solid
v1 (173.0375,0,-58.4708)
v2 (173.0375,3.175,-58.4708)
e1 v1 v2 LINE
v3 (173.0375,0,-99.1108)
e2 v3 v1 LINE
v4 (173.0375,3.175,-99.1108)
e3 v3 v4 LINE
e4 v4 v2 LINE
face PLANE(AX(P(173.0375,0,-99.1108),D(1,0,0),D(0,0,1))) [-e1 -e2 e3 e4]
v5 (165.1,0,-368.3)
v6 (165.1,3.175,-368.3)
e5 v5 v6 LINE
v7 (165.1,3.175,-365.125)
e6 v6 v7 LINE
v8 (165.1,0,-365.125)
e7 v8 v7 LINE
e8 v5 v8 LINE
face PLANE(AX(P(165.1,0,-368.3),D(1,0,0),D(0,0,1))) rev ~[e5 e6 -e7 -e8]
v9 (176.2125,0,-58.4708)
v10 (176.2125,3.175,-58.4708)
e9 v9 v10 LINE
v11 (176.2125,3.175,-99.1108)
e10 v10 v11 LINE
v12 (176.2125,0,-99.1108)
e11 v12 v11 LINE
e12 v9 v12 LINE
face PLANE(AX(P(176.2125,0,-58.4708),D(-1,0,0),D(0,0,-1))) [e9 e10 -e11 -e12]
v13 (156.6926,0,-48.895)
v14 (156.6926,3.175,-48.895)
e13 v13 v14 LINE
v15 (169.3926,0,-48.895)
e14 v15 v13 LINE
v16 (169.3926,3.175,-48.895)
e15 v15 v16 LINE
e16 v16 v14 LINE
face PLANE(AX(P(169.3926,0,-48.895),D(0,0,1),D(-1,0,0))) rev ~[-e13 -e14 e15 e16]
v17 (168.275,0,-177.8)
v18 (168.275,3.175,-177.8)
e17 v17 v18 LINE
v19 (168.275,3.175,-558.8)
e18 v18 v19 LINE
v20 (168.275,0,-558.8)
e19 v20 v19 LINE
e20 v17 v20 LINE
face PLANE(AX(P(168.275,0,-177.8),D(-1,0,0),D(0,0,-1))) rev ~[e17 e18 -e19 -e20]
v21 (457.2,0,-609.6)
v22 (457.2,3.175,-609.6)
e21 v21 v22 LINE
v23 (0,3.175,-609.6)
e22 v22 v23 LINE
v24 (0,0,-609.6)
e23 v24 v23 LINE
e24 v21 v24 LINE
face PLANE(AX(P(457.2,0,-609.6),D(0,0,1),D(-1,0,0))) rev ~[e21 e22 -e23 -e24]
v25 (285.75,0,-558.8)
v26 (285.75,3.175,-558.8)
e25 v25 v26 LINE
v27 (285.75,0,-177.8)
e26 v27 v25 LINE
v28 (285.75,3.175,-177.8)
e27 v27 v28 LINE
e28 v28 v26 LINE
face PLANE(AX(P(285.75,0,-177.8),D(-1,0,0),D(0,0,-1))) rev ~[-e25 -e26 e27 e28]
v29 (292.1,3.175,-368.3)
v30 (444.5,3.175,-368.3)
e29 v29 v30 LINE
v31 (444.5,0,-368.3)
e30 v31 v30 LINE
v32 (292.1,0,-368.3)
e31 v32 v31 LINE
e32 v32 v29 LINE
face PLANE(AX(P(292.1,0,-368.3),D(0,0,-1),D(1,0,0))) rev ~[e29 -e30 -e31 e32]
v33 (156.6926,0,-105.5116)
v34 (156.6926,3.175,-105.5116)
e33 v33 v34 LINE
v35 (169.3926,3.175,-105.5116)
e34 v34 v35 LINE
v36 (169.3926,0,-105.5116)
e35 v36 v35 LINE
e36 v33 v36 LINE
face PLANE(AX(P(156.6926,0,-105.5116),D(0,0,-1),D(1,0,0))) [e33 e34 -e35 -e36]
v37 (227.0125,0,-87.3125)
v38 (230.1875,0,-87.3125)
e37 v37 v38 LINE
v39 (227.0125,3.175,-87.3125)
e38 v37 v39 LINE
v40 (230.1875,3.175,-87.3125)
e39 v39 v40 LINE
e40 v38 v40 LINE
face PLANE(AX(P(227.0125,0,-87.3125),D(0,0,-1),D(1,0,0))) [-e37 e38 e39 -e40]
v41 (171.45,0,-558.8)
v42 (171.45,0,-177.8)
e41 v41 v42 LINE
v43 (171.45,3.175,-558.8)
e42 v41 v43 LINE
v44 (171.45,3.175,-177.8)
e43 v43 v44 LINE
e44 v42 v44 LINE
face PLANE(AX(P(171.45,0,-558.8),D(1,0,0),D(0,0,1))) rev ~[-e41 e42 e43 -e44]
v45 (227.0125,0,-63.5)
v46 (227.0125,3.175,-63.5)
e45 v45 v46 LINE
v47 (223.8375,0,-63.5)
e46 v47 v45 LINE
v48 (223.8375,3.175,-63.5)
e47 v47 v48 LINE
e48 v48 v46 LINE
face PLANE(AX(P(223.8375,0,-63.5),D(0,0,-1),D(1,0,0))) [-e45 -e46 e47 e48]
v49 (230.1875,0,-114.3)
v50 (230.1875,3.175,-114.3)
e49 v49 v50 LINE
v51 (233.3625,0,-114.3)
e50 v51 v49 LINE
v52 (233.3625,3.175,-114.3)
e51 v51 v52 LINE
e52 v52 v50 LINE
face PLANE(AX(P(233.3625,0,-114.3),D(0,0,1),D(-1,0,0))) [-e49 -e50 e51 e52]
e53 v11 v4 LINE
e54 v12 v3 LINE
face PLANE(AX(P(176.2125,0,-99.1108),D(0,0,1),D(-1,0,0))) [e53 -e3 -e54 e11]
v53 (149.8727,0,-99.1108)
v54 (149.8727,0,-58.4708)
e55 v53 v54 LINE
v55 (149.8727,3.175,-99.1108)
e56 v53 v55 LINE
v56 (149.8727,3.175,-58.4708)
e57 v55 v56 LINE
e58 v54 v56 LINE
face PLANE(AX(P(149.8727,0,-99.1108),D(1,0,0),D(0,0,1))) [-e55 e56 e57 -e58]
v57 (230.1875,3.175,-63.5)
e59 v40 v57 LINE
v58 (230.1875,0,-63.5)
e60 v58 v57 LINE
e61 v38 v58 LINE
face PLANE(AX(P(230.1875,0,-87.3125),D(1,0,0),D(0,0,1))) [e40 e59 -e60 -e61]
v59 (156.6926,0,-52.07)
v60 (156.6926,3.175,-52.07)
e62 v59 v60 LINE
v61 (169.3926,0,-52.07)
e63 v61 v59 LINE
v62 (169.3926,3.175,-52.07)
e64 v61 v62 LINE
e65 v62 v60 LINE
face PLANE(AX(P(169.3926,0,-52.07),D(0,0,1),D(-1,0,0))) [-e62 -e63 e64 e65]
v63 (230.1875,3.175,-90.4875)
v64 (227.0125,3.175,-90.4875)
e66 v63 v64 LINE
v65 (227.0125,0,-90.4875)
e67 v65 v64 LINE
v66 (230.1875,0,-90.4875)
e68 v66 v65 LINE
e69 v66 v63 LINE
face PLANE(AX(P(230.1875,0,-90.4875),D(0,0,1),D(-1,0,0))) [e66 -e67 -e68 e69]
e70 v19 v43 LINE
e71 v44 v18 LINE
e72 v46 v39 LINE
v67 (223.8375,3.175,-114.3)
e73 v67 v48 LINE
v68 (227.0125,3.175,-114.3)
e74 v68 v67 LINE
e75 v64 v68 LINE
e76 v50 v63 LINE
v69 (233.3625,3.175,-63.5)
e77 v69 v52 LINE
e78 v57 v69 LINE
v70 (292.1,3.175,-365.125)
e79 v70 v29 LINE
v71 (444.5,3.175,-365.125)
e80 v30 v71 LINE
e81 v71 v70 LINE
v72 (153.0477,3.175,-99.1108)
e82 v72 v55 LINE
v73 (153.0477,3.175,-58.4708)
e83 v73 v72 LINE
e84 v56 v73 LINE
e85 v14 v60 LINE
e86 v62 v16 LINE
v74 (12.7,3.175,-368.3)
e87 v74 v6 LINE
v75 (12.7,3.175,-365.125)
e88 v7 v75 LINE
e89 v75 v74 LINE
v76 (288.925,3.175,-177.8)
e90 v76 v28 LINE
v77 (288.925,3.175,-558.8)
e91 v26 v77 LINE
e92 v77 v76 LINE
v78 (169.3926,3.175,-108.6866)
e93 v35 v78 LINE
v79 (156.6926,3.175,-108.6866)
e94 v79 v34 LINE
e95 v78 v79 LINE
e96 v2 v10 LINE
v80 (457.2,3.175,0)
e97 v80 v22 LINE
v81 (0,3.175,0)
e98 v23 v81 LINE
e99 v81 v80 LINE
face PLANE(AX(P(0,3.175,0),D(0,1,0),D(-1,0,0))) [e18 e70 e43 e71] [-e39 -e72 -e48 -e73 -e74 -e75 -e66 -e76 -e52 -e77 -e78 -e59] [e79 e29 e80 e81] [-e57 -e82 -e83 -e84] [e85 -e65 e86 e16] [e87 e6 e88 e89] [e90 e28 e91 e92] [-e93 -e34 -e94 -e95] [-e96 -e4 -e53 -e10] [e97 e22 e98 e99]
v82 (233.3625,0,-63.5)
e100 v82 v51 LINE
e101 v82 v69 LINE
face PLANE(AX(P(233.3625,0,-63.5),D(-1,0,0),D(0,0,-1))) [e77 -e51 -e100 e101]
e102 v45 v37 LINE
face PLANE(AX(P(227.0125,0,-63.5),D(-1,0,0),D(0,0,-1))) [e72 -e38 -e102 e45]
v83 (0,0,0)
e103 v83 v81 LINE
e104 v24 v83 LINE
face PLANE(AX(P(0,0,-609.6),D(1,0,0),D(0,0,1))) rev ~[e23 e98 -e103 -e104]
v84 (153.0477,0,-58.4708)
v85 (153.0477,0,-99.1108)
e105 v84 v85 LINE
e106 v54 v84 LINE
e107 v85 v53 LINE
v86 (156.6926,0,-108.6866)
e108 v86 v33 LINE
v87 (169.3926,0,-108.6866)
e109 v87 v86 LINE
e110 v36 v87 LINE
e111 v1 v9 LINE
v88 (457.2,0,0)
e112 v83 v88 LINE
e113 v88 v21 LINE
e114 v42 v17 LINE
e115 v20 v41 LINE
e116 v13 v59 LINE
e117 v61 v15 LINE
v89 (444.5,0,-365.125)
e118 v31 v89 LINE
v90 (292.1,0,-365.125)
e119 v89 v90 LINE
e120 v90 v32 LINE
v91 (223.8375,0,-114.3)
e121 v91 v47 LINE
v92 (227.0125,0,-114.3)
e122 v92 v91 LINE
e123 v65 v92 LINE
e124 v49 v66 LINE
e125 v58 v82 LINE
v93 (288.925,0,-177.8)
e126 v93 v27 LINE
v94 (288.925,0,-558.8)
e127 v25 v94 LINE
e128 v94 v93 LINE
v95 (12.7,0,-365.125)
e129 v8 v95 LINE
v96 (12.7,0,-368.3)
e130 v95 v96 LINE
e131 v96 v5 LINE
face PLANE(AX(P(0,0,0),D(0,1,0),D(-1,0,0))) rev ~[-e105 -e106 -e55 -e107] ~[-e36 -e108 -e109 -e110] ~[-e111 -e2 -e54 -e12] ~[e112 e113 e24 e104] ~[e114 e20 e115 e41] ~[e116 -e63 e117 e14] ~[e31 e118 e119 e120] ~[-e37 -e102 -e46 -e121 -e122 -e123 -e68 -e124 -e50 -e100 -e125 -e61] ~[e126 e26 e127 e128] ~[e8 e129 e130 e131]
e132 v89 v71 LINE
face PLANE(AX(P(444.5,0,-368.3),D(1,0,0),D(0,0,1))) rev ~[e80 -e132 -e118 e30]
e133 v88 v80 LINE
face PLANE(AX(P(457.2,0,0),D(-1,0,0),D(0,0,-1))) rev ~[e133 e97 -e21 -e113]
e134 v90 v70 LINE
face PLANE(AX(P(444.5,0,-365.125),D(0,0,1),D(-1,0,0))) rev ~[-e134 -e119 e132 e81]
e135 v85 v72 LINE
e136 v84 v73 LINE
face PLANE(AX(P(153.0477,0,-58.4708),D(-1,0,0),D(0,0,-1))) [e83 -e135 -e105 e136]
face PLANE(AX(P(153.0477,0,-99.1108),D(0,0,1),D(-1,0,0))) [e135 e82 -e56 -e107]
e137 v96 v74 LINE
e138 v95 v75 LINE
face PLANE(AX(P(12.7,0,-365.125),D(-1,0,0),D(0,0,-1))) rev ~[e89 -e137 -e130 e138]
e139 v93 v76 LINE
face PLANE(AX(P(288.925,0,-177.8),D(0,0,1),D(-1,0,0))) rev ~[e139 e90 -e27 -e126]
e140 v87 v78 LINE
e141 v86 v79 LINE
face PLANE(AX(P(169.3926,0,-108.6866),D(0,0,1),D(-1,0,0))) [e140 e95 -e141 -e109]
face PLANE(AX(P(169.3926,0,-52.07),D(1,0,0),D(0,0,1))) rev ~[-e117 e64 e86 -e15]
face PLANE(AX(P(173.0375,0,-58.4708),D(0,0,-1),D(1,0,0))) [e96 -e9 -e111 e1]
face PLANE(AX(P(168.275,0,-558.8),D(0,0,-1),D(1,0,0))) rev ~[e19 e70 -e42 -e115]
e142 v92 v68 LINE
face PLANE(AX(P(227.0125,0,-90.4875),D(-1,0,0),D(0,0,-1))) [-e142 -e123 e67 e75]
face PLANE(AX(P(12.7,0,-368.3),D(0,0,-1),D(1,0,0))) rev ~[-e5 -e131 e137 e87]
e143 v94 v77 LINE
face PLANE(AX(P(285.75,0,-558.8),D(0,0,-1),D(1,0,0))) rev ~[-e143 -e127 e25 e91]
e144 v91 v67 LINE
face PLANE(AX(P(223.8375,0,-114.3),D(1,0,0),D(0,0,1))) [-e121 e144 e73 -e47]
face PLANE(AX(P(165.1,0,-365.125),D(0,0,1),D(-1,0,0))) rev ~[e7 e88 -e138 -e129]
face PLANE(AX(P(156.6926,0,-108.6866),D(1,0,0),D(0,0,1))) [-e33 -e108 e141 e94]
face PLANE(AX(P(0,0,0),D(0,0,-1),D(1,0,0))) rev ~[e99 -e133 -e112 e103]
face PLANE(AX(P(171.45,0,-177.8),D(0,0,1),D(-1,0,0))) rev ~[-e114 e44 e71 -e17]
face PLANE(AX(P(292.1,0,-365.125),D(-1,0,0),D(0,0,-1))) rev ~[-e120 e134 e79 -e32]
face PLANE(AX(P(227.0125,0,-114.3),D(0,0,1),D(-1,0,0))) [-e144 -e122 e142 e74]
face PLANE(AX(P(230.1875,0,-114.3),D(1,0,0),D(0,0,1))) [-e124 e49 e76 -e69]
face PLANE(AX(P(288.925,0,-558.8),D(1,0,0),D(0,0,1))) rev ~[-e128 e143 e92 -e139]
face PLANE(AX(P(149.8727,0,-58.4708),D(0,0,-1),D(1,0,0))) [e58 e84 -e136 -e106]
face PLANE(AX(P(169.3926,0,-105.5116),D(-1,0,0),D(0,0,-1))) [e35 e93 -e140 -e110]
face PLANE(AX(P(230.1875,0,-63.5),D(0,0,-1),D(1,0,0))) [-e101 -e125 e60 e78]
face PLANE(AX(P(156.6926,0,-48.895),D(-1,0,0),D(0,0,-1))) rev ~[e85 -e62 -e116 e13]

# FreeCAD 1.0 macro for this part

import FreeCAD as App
import Part
import Sketcher
from FreeCAD import Vector
Q = App.Units.Quantity

doc = App.newDocument("Part")
body = doc.addObject("PartDesign::Body", "Body")

# Sketch on XZ plane
sketch1 = doc.addObject("Sketcher::SketchObject", "Sketch")
body.addObject(sketch1)
sketch1.AttachmentSupport = (doc.XZ_Plane, [""])
sketch1.MapMode = "FlatFace"
sketch1.addGeometry([
    Part.LineSegment(Vector(0, -609.6, 0), Vector(0, 0, 0)),  # 0
    Part.LineSegment(Vector(0, 0, 0), Vector(457.2, 0, 0)),  # 1
    Part.LineSegment(Vector(457.2, 0, 0), Vector(457.2, -609.6, 0)),  # 2
    Part.LineSegment(Vector(457.2, -609.6, 0), Vector(0, -609.6, 0)),  # 3
    Part.LineSegment(Vector(292.1, -365.125, 0), Vector(292.1, -368.3, 0)),  # 4
    Part.LineSegment(Vector(292.1, -368.3, 0), Vector(444.5, -368.3, 0)),  # 5
    Part.LineSegment(Vector(444.5, -368.3, 0), Vector(444.5, -365.125, 0)),  # 6
    Part.LineSegment(Vector(444.5, -365.125, 0), Vector(292.1, -365.125, 0)),  # 7
    Part.LineSegment(Vector(285.75, -177.8, 0), Vector(285.75, -558.8, 0)),  # 8
    Part.LineSegment(Vector(285.75, -558.8, 0), Vector(288.925, -558.8, 0)),  # 9
    Part.LineSegment(Vector(288.925, -558.8, 0), Vector(288.925, -177.8, 0)),  # 10
    Part.LineSegment(Vector(288.925, -177.8, 0), Vector(285.75, -177.8, 0)),  # 11
    Part.LineSegment(Vector(168.275, -177.8, 0), Vector(168.275, -558.8, 0)),  # 12
    Part.LineSegment(Vector(168.275, -558.8, 0), Vector(171.45, -558.8, 0)),  # 13
    Part.LineSegment(Vector(171.45, -558.8, 0), Vector(171.45, -177.8, 0)),  # 14
    Part.LineSegment(Vector(171.45, -177.8, 0), Vector(168.275, -177.8, 0)),  # 15
    Part.LineSegment(Vector(12.7, -365.125, 0), Vector(12.7, -368.3, 0)),  # 16
    Part.LineSegment(Vector(12.7, -368.3, 0), Vector(165.1, -368.3, 0)),  # 17
    Part.LineSegment(Vector(165.1, -368.3, 0), Vector(165.1, -365.125, 0)),  # 18
    Part.LineSegment(Vector(165.1, -365.125, 0), Vector(12.7, -365.125, 0)),  # 19
    Part.LineSegment(Vector(227.0125, -63.5, 0), Vector(223.8375, -63.5, 0)),  # 20
    Part.LineSegment(Vector(223.8375, -63.5, 0), Vector(223.8375, -114.3, 0)),  # 21
    Part.LineSegment(Vector(223.8375, -114.3, 0), Vector(227.0125, -114.3, 0)),  # 22
    Part.LineSegment(Vector(227.0125, -114.3, 0), Vector(227.0125, -90.4875, 0)),  # 23
    Part.LineSegment(Vector(227.0125, -90.4875, 0), Vector(230.1875, -90.4875, 0)),  # 24
    Part.LineSegment(Vector(230.1875, -90.4875, 0), Vector(230.1875, -114.3, 0)),  # 25
    Part.LineSegment(Vector(230.1875, -114.3, 0), Vector(233.3625, -114.3, 0)),  # 26
    Part.LineSegment(Vector(233.3625, -114.3, 0), Vector(233.3625, -63.5, 0)),  # 27
    Part.LineSegment(Vector(233.3625, -63.5, 0), Vector(230.1875, -63.5, 0)),  # 28
    Part.LineSegment(Vector(230.1875, -63.5, 0), Vector(230.1875, -87.3125, 0)),  # 29
    Part.LineSegment(Vector(230.1875, -87.3125, 0), Vector(227.0125, -87.3125, 0)),  # 30
    Part.LineSegment(Vector(227.0125, -87.3125, 0), Vector(227.0125, -63.5, 0)),  # 31
    Part.LineSegment(Vector(149.8727, -99.1108, 0), Vector(153.0477, -99.1108, 0)),  # 32
    Part.LineSegment(Vector(153.0477, -99.1108, 0), Vector(153.0477, -58.4708, 0)),  # 33
    Part.LineSegment(Vector(153.0477, -58.4708, 0), Vector(149.8727, -58.4708, 0)),  # 34
    Part.LineSegment(Vector(149.8727, -58.4708, 0), Vector(149.8727, -99.1108, 0)),  # 35
    Part.LineSegment(Vector(156.6926, -48.895, 0), Vector(156.6926, -52.07, 0)),  # 36
    Part.LineSegment(Vector(156.6926, -52.07, 0), Vector(169.3926, -52.07, 0)),  # 37
    Part.LineSegment(Vector(169.3926, -52.07, 0), Vector(169.3926, -48.895, 0)),  # 38
    Part.LineSegment(Vector(169.3926, -48.895, 0), Vector(156.6926, -48.895, 0)),  # 39
    Part.LineSegment(Vector(176.2125, -58.4708, 0), Vector(173.0375, -58.4708, 0)),  # 40
    Part.LineSegment(Vector(173.0375, -58.4708, 0), Vector(173.0375, -99.1108, 0)),  # 41
    Part.LineSegment(Vector(173.0375, -99.1108, 0), Vector(176.2125, -99.1108, 0)),  # 42
    Part.LineSegment(Vector(176.2125, -99.1108, 0), Vector(176.2125, -58.4708, 0)),  # 43
    Part.LineSegment(Vector(169.3926, -108.6866, 0), Vector(169.3926, -105.5116, 0)),  # 44
    Part.LineSegment(Vector(169.3926, -105.5116, 0), Vector(156.6926, -105.5116, 0)),  # 45
    Part.LineSegment(Vector(156.6926, -105.5116, 0), Vector(156.6926, -108.6866, 0)),  # 46
    Part.LineSegment(Vector(156.6926, -108.6866, 0), Vector(169.3926, -108.6866, 0)),  # 47
], False)
sketch1.addConstraint([
    Sketcher.Constraint("Coincident", 0, 2, 1, 1),
    Sketcher.Constraint("Coincident", 1, 2, 2, 1),
    Sketcher.Constraint("Coincident", 2, 2, 3, 1),
    Sketcher.Constraint("Coincident", 3, 2, 0, 1),
    Sketcher.Constraint("Coincident", 4, 2, 5, 1),
    Sketcher.Constraint("Coincident", 5, 2, 6, 1),
    Sketcher.Constraint("Coincident", 6, 2, 7, 1),
    Sketcher.Constraint("Coincident", 7, 2, 4, 1),
    Sketcher.Constraint("Coincident", 8, 2, 9, 1),
    Sketcher.Constraint("Coincident", 9, 2, 10, 1),
    Sketcher.Constraint("Coincident", 10, 2, 11, 1),
    Sketcher.Constraint("Coincident", 11, 2, 8, 1),
    Sketcher.Constraint("Coincident", 12, 2, 13, 1),
    Sketcher.Constraint("Coincident", 13, 2, 14, 1),
    Sketcher.Constraint("Coincident", 14, 2, 15, 1),
    Sketcher.Constraint("Coincident", 15, 2, 12, 1),
    Sketcher.Constraint("Coincident", 16, 2, 17, 1),
    Sketcher.Constraint("Coincident", 17, 2, 18, 1),
    Sketcher.Constraint("Coincident", 18, 2, 19, 1),
    Sketcher.Constraint("Coincident", 19, 2, 16, 1),
    Sketcher.Constraint("Coincident", 20, 2, 21, 1),
    Sketcher.Constraint("Coincident", 21, 2, 22, 1),
    Sketcher.Constraint("Coincident", 22, 2, 23, 1),
    Sketcher.Constraint("Coincident", 23, 2, 24, 1),
    Sketcher.Constraint("Coincident", 24, 2, 25, 1),
    Sketcher.Constraint("Coincident", 25, 2, 26, 1),
    Sketcher.Constraint("Coincident", 26, 2, 27, 1),
    Sketcher.Constraint("Coincident", 27, 2, 28, 1),
    Sketcher.Constraint("Coincident", 28, 2, 29, 1),
    Sketcher.Constraint("Coincident", 29, 2, 30, 1),
    Sketcher.Constraint("Coincident", 30, 2, 31, 1),
    Sketcher.Constraint("Coincident", 31, 2, 20, 1),
    Sketcher.Constraint("Coincident", 32, 2, 33, 1),
    Sketcher.Constraint("Coincident", 33, 2, 34, 1),
    Sketcher.Constraint("Coincident", 34, 2, 35, 1),
    Sketcher.Constraint("Coincident", 35, 2, 32, 1),
    Sketcher.Constraint("Coincident", 36, 2, 37, 1),
    Sketcher.Constraint("Coincident", 37, 2, 38, 1),
    Sketcher.Constraint("Coincident", 38, 2, 39, 1),
    Sketcher.Constraint("Coincident", 39, 2, 36, 1),
    Sketcher.Constraint("Coincident", 40, 2, 41, 1),
    Sketcher.Constraint("Coincident", 41, 2, 42, 1),
    Sketcher.Constraint("Coincident", 42, 2, 43, 1),
    Sketcher.Constraint("Coincident", 43, 2, 40, 1),
    Sketcher.Constraint("Coincident", 44, 2, 45, 1),
    Sketcher.Constraint("Coincident", 45, 2, 46, 1),
    Sketcher.Constraint("Coincident", 46, 2, 47, 1),
    Sketcher.Constraint("Coincident", 47, 2, 44, 1),
    Sketcher.Constraint("Vertical", 0),
    Sketcher.Constraint("Horizontal", 1),
    Sketcher.Constraint("Vertical", 2),
    Sketcher.Constraint("Horizontal", 3),
    Sketcher.Constraint("Vertical", 4),
    Sketcher.Constraint("Horizontal", 5),
    Sketcher.Constraint("Vertical", 6),
    Sketcher.Constraint("Horizontal", 7),
    Sketcher.Constraint("Vertical", 8),
    Sketcher.Constraint("Horizontal", 9),
    Sketcher.Constraint("Vertical", 10),
    Sketcher.Constraint("Horizontal", 11),
    Sketcher.Constraint("Vertical", 12),
    Sketcher.Constraint("Horizontal", 13),
    Sketcher.Constraint("Vertical", 14),
    Sketcher.Constraint("Horizontal", 15),
    Sketcher.Constraint("Vertical", 16),
    Sketcher.Constraint("Horizontal", 17),
    Sketcher.Constraint("Vertical", 18),
    Sketcher.Constraint("Horizontal", 19),
    Sketcher.Constraint("Horizontal", 20),
    Sketcher.Constraint("Vertical", 21),
    Sketcher.Constraint("Horizontal", 22),
    Sketcher.Constraint("Vertical", 23),
    Sketcher.Constraint("Horizontal", 24),
    Sketcher.Constraint("Vertical", 25),
    Sketcher.Constraint("Horizontal", 26),
    Sketcher.Constraint("Vertical", 27),
    Sketcher.Constraint("Horizontal", 28),
    Sketcher.Constraint("Vertical", 29),
    Sketcher.Constraint("Horizontal", 30),
    Sketcher.Constraint("Vertical", 31),
    Sketcher.Constraint("Horizontal", 32),
    Sketcher.Constraint("Vertical", 33),
    Sketcher.Constraint("Horizontal", 34),
    Sketcher.Constraint("Vertical", 35),
    Sketcher.Constraint("Vertical", 36),
    Sketcher.Constraint("Horizontal", 37),
    Sketcher.Constraint("Vertical", 38),
    Sketcher.Constraint("Horizontal", 39),
    Sketcher.Constraint("Horizontal", 40),
    Sketcher.Constraint("Vertical", 41),
    Sketcher.Constraint("Horizontal", 42),
    Sketcher.Constraint("Vertical", 43),
    Sketcher.Constraint("Vertical", 44),
    Sketcher.Constraint("Horizontal", 45),
    Sketcher.Constraint("Vertical", 46),
    Sketcher.Constraint("Horizontal", 47),
    Sketcher.Constraint("Coincident", 0, 2, -1, 1),
    Sketcher.Constraint("Horizontal", 9, 2, 12, 2),
    Sketcher.Constraint("Horizontal", 11, 2, 14, 2),
    Sketcher.Constraint("Horizontal", 5, 2, 16, 2),
    Sketcher.Constraint("Horizontal", 7, 2, 18, 2),
    Sketcher.Constraint("Horizontal", 22, 2, 25, 2),
    Sketcher.Constraint("Horizontal", 20, 2, 27, 2),
    Sketcher.Constraint("Horizontal", 34, 2, 40, 2),
    Sketcher.Constraint("Horizontal", 35, 2, 41, 2),
    Sketcher.Constraint("Vertical", 25, 2, 28, 2),
    Sketcher.Constraint("Vertical", 23, 2, 30, 2),
    Sketcher.Constraint("Vertical", 38, 2, 44, 2),
    Sketcher.Constraint("Vertical", 39, 2, 45, 2),
    Sketcher.Constraint("Equal", 11, 13),
    Sketcher.Constraint("Equal", 7, 17),
    Sketcher.Constraint("Equal", 15, 20),
    Sketcher.Constraint("Equal", 22, 24),
    Sketcher.Constraint("Equal", 24, 26),
    Sketcher.Constraint("Equal", 30, 32),
    Sketcher.Constraint("Equal", 34, 40),
    Sketcher.Constraint("Equal", 42, 4),
    Sketcher.Constraint("Equal", 25, 29),
    Sketcher.Constraint("Equal", 18, 36),
    Sketcher.Constraint("Equal", 38, 44),
    Sketcher.Constraint("DistanceX", 1, 1, 1, 2, Q("18 in")),
    Sketcher.Constraint("DistanceX", 5, 1, 5, 2, Q("6 in")),
    Sketcher.Constraint("DistanceY", 0, 1, 0, 2, Q("24 in")),
    Sketcher.Constraint("DistanceY", 8, 2, 8, 1, Q("15 in")),
    Sketcher.Constraint("DistanceY", 21, 2, 21, 1, Q("2 in")),
    Sketcher.Constraint("DistanceX", 37, 1, 37, 2, Q("0.5 in")),
    Sketcher.Constraint("DistanceY", 33, 1, 33, 2, Q("1.6 in")),
    Sketcher.Constraint("DistanceY", 2, 2, 8, 2, Q("2 in")),
    Sketcher.Constraint("DistanceX", -1, 1, 16, 2, Q("0.5 in")),
    Sketcher.Constraint("DistanceY", 20, 2, -1, 1, Q("2.5 in")),
    Sketcher.Constraint("DistanceY", 2, 2, 4, 2, Q("9.5 in")),
    Sketcher.Constraint("DistanceX", 5, 2, 2, 2, Q("0.5 in")),
    Sketcher.Constraint("DistanceX", 13, 2, 8, 2, Q("4.5 in")),
    Sketcher.Constraint("DistanceX", 9, 1, 9, 2, Q("0.125 in")),
    Sketcher.Constraint("DistanceY", 23, 1, 23, 2, Q("0.9375 in")),
    Sketcher.Constraint("DistanceX", -1, 1, 12, 2, Q("6.625 in")),
    Sketcher.Constraint("DistanceX", -1, 1, 20, 2, Q("8.8125 in")),
    Sketcher.Constraint("DistanceY", 44, 2, -1, 1, Q("4.154 in")),
    Sketcher.Constraint("DistanceY", 33, 2, 36, 2, Q("0.252 in")),
    Sketcher.Constraint("DistanceX", 33, 2, 40, 2, Q("0.787 in")),
    Sketcher.Constraint("DistanceY", 44, 2, 41, 2, Q("0.252 in")),
    Sketcher.Constraint("DistanceX", 33, 2, 36, 2, Q("0.1435 in")),
    Sketcher.Constraint("DistanceX", -1, 1, 36, 2, Q("6.169 in")),
])
pad1 = doc.addObject("PartDesign::Pad", "Pad")
body.addObject(pad1)
pad1.Profile = sketch1
pad1.Length = Q("0.125 in")
pad1.Reversed = True

doc.recompute()
